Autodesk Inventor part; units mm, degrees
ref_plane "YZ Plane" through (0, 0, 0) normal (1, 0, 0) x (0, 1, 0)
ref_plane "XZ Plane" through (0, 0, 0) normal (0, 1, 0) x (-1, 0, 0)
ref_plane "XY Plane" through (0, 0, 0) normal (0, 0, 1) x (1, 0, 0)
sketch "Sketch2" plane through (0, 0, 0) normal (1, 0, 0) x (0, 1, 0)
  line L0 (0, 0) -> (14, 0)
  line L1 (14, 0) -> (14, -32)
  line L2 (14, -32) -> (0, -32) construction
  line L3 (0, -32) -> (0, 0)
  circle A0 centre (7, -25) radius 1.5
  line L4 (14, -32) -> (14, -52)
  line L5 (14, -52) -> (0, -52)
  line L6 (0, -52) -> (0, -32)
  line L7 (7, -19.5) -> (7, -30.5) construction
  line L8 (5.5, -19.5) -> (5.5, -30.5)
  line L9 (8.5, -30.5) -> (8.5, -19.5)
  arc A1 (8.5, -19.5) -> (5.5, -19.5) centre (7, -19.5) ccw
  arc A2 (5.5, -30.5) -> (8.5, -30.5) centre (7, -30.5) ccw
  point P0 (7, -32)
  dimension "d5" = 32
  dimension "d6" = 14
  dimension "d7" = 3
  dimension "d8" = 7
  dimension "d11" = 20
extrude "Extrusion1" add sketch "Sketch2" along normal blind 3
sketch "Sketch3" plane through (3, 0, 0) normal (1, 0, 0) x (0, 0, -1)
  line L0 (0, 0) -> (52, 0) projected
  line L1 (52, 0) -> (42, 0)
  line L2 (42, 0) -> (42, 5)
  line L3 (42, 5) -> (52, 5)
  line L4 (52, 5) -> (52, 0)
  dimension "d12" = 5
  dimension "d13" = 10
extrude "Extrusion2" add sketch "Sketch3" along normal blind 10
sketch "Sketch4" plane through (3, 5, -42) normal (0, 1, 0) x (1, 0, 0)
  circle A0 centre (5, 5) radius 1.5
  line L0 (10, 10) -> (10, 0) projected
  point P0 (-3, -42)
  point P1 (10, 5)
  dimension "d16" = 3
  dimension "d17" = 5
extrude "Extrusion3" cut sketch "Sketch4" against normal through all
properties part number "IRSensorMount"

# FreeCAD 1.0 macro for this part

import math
import FreeCAD as App
import Part
import Sketcher

V = App.Vector

doc = App.newDocument("Part")
body = doc.addObject("PartDesign::Body", "Body")

# Sketch on YZ plane
sketch1 = doc.addObject("Sketcher::SketchObject", "Sketch")
body.addObject(sketch1)
sketch1.AttachmentSupport = (doc.YZ_Plane, [""])
sketch1.MapMode = "FlatFace"
sketch1.addGeometry([
    Part.LineSegment(V(14, 0, 0), V(0, 0, 0)),  # 0
    Part.LineSegment(V(0, 0, 0), V(0, -52, 0)),  # 1
    Part.LineSegment(V(0, -52, 0), V(14, -52, 0)),  # 2
    Part.LineSegment(V(14, -52, 0), V(14, 0, 0)),  # 3
    Part.LineSegment(V(8.5, -19.5, 0), V(8.5, -30.5, 0)),  # 4
    Part.ArcOfCircle(Part.Circle(V(7, -30.5, 0), V(0, 0, 1), 1.5), math.radians(180), math.radians(360)),  # 5
    Part.LineSegment(V(5.5, -30.5, 0), V(5.5, -19.5, 0)),  # 6
    Part.ArcOfCircle(Part.Circle(V(7, -19.5, 0), V(0, 0, 1), 1.5), math.radians(0), math.radians(180)),  # 7
], False)
sketch1.addConstraint([
    Sketcher.Constraint("Coincident", 0, 2, 1, 1),
    Sketcher.Constraint("Coincident", 1, 2, 2, 1),
    Sketcher.Constraint("Coincident", 2, 2, 3, 1),
    Sketcher.Constraint("Coincident", 3, 2, 0, 1),
    Sketcher.Constraint("Tangent", 4, 2, 5, 2),
    Sketcher.Constraint("Tangent", 5, 1, 6, 1),
    Sketcher.Constraint("Tangent", 6, 2, 7, 2),
    Sketcher.Constraint("Tangent", 7, 1, 4, 1),
    Sketcher.Constraint("Horizontal", 0),
    Sketcher.Constraint("Vertical", 1),
    Sketcher.Constraint("Horizontal", 2),
    Sketcher.Constraint("Vertical", 3),
    Sketcher.Constraint("Vertical", 4),
    Sketcher.Constraint("Vertical", 6),
    Sketcher.Constraint("Coincident", 0, 2, -1, 1),
    Sketcher.Constraint("Radius", 5, 1.5),
    Sketcher.Constraint("DistanceX", 0, 2, 0, 1, 14.0),
    Sketcher.Constraint("DistanceX", -1, 1, 5, 3, 7.0),
    Sketcher.Constraint("DistanceY", 1, 2, 1, 1, 52.0),
    Sketcher.Constraint("DistanceY", 4, 2, 4, 1, 11.0),
    Sketcher.Constraint("DistanceY", 5, 3, -1, 1, 30.5),
])
pad1 = doc.addObject("PartDesign::Pad", "Pad")
body.addObject(pad1)
pad1.Profile = sketch1
pad1.Length = 3

# Sketch on YZ plane
sketch2 = doc.addObject("Sketcher::SketchObject", "Sketch001")
body.addObject(sketch2)
sketch2.AttachmentSupport = (doc.YZ_Plane, [""])
sketch2.MapMode = "FlatFace"
sketch2.AttachmentOffset = App.Placement(V(0, 0, 3), App.Rotation())
sketch2.addGeometry([
    Part.LineSegment(V(5, -42, 0), V(0, -42, 0)),
    Part.LineSegment(V(0, -42, 0), V(0, -52, 0)),
    Part.LineSegment(V(0, -52, 0), V(5, -52, 0)),
    Part.LineSegment(V(5, -52, 0), V(5, -42, 0)),
], False)
sketch2.addConstraint([
    Sketcher.Constraint("Coincident", 0, 2, 1, 1),
    Sketcher.Constraint("Coincident", 1, 2, 2, 1),
    Sketcher.Constraint("Coincident", 2, 2, 3, 1),
    Sketcher.Constraint("Coincident", 3, 2, 0, 1),
    Sketcher.Constraint("Horizontal", 0),
    Sketcher.Constraint("Vertical", 1),
    Sketcher.Constraint("Horizontal", 2),
    Sketcher.Constraint("Vertical", 3),
    Sketcher.Constraint("PointOnObject", 0, 2, -2),
    Sketcher.Constraint("DistanceX", 0, 2, 0, 1, 5.0),
    Sketcher.Constraint("DistanceY", 1, 2, 1, 1, 10.0),
    Sketcher.Constraint("DistanceY", 0, 2, -1, 1, 42.0),
])
pad2 = doc.addObject("PartDesign::Pad", "Pad001")
body.addObject(pad2)
pad2.Profile = sketch2
pad2.Length = 10

# Sketch on XZ plane
sketch3 = doc.addObject("Sketcher::SketchObject", "Sketch002")
body.addObject(sketch3)
sketch3.AttachmentSupport = (doc.XZ_Plane, [""])
sketch3.MapMode = "FlatFace"
sketch3.AttachmentOffset = App.Placement(V(0, 0, -5), App.Rotation())
sketch3.addGeometry(Part.Circle(V(8, -47, 0), V(0, 0, 1), 1.5), False)
sketch3.addConstraint([
    Sketcher.Constraint("Diameter", 0, 3.0),
    Sketcher.Constraint("DistanceX", -1, 1, 0, 3, 8.0),
    Sketcher.Constraint("DistanceY", 0, 3, -1, 1, 47.0),
])
pocket1 = doc.addObject("PartDesign::Pocket", "Pocket")
body.addObject(pocket1)
pocket1.Profile = sketch3
pocket1.Type = "ThroughAll"
pocket1.Reversed = True

doc.recompute()
